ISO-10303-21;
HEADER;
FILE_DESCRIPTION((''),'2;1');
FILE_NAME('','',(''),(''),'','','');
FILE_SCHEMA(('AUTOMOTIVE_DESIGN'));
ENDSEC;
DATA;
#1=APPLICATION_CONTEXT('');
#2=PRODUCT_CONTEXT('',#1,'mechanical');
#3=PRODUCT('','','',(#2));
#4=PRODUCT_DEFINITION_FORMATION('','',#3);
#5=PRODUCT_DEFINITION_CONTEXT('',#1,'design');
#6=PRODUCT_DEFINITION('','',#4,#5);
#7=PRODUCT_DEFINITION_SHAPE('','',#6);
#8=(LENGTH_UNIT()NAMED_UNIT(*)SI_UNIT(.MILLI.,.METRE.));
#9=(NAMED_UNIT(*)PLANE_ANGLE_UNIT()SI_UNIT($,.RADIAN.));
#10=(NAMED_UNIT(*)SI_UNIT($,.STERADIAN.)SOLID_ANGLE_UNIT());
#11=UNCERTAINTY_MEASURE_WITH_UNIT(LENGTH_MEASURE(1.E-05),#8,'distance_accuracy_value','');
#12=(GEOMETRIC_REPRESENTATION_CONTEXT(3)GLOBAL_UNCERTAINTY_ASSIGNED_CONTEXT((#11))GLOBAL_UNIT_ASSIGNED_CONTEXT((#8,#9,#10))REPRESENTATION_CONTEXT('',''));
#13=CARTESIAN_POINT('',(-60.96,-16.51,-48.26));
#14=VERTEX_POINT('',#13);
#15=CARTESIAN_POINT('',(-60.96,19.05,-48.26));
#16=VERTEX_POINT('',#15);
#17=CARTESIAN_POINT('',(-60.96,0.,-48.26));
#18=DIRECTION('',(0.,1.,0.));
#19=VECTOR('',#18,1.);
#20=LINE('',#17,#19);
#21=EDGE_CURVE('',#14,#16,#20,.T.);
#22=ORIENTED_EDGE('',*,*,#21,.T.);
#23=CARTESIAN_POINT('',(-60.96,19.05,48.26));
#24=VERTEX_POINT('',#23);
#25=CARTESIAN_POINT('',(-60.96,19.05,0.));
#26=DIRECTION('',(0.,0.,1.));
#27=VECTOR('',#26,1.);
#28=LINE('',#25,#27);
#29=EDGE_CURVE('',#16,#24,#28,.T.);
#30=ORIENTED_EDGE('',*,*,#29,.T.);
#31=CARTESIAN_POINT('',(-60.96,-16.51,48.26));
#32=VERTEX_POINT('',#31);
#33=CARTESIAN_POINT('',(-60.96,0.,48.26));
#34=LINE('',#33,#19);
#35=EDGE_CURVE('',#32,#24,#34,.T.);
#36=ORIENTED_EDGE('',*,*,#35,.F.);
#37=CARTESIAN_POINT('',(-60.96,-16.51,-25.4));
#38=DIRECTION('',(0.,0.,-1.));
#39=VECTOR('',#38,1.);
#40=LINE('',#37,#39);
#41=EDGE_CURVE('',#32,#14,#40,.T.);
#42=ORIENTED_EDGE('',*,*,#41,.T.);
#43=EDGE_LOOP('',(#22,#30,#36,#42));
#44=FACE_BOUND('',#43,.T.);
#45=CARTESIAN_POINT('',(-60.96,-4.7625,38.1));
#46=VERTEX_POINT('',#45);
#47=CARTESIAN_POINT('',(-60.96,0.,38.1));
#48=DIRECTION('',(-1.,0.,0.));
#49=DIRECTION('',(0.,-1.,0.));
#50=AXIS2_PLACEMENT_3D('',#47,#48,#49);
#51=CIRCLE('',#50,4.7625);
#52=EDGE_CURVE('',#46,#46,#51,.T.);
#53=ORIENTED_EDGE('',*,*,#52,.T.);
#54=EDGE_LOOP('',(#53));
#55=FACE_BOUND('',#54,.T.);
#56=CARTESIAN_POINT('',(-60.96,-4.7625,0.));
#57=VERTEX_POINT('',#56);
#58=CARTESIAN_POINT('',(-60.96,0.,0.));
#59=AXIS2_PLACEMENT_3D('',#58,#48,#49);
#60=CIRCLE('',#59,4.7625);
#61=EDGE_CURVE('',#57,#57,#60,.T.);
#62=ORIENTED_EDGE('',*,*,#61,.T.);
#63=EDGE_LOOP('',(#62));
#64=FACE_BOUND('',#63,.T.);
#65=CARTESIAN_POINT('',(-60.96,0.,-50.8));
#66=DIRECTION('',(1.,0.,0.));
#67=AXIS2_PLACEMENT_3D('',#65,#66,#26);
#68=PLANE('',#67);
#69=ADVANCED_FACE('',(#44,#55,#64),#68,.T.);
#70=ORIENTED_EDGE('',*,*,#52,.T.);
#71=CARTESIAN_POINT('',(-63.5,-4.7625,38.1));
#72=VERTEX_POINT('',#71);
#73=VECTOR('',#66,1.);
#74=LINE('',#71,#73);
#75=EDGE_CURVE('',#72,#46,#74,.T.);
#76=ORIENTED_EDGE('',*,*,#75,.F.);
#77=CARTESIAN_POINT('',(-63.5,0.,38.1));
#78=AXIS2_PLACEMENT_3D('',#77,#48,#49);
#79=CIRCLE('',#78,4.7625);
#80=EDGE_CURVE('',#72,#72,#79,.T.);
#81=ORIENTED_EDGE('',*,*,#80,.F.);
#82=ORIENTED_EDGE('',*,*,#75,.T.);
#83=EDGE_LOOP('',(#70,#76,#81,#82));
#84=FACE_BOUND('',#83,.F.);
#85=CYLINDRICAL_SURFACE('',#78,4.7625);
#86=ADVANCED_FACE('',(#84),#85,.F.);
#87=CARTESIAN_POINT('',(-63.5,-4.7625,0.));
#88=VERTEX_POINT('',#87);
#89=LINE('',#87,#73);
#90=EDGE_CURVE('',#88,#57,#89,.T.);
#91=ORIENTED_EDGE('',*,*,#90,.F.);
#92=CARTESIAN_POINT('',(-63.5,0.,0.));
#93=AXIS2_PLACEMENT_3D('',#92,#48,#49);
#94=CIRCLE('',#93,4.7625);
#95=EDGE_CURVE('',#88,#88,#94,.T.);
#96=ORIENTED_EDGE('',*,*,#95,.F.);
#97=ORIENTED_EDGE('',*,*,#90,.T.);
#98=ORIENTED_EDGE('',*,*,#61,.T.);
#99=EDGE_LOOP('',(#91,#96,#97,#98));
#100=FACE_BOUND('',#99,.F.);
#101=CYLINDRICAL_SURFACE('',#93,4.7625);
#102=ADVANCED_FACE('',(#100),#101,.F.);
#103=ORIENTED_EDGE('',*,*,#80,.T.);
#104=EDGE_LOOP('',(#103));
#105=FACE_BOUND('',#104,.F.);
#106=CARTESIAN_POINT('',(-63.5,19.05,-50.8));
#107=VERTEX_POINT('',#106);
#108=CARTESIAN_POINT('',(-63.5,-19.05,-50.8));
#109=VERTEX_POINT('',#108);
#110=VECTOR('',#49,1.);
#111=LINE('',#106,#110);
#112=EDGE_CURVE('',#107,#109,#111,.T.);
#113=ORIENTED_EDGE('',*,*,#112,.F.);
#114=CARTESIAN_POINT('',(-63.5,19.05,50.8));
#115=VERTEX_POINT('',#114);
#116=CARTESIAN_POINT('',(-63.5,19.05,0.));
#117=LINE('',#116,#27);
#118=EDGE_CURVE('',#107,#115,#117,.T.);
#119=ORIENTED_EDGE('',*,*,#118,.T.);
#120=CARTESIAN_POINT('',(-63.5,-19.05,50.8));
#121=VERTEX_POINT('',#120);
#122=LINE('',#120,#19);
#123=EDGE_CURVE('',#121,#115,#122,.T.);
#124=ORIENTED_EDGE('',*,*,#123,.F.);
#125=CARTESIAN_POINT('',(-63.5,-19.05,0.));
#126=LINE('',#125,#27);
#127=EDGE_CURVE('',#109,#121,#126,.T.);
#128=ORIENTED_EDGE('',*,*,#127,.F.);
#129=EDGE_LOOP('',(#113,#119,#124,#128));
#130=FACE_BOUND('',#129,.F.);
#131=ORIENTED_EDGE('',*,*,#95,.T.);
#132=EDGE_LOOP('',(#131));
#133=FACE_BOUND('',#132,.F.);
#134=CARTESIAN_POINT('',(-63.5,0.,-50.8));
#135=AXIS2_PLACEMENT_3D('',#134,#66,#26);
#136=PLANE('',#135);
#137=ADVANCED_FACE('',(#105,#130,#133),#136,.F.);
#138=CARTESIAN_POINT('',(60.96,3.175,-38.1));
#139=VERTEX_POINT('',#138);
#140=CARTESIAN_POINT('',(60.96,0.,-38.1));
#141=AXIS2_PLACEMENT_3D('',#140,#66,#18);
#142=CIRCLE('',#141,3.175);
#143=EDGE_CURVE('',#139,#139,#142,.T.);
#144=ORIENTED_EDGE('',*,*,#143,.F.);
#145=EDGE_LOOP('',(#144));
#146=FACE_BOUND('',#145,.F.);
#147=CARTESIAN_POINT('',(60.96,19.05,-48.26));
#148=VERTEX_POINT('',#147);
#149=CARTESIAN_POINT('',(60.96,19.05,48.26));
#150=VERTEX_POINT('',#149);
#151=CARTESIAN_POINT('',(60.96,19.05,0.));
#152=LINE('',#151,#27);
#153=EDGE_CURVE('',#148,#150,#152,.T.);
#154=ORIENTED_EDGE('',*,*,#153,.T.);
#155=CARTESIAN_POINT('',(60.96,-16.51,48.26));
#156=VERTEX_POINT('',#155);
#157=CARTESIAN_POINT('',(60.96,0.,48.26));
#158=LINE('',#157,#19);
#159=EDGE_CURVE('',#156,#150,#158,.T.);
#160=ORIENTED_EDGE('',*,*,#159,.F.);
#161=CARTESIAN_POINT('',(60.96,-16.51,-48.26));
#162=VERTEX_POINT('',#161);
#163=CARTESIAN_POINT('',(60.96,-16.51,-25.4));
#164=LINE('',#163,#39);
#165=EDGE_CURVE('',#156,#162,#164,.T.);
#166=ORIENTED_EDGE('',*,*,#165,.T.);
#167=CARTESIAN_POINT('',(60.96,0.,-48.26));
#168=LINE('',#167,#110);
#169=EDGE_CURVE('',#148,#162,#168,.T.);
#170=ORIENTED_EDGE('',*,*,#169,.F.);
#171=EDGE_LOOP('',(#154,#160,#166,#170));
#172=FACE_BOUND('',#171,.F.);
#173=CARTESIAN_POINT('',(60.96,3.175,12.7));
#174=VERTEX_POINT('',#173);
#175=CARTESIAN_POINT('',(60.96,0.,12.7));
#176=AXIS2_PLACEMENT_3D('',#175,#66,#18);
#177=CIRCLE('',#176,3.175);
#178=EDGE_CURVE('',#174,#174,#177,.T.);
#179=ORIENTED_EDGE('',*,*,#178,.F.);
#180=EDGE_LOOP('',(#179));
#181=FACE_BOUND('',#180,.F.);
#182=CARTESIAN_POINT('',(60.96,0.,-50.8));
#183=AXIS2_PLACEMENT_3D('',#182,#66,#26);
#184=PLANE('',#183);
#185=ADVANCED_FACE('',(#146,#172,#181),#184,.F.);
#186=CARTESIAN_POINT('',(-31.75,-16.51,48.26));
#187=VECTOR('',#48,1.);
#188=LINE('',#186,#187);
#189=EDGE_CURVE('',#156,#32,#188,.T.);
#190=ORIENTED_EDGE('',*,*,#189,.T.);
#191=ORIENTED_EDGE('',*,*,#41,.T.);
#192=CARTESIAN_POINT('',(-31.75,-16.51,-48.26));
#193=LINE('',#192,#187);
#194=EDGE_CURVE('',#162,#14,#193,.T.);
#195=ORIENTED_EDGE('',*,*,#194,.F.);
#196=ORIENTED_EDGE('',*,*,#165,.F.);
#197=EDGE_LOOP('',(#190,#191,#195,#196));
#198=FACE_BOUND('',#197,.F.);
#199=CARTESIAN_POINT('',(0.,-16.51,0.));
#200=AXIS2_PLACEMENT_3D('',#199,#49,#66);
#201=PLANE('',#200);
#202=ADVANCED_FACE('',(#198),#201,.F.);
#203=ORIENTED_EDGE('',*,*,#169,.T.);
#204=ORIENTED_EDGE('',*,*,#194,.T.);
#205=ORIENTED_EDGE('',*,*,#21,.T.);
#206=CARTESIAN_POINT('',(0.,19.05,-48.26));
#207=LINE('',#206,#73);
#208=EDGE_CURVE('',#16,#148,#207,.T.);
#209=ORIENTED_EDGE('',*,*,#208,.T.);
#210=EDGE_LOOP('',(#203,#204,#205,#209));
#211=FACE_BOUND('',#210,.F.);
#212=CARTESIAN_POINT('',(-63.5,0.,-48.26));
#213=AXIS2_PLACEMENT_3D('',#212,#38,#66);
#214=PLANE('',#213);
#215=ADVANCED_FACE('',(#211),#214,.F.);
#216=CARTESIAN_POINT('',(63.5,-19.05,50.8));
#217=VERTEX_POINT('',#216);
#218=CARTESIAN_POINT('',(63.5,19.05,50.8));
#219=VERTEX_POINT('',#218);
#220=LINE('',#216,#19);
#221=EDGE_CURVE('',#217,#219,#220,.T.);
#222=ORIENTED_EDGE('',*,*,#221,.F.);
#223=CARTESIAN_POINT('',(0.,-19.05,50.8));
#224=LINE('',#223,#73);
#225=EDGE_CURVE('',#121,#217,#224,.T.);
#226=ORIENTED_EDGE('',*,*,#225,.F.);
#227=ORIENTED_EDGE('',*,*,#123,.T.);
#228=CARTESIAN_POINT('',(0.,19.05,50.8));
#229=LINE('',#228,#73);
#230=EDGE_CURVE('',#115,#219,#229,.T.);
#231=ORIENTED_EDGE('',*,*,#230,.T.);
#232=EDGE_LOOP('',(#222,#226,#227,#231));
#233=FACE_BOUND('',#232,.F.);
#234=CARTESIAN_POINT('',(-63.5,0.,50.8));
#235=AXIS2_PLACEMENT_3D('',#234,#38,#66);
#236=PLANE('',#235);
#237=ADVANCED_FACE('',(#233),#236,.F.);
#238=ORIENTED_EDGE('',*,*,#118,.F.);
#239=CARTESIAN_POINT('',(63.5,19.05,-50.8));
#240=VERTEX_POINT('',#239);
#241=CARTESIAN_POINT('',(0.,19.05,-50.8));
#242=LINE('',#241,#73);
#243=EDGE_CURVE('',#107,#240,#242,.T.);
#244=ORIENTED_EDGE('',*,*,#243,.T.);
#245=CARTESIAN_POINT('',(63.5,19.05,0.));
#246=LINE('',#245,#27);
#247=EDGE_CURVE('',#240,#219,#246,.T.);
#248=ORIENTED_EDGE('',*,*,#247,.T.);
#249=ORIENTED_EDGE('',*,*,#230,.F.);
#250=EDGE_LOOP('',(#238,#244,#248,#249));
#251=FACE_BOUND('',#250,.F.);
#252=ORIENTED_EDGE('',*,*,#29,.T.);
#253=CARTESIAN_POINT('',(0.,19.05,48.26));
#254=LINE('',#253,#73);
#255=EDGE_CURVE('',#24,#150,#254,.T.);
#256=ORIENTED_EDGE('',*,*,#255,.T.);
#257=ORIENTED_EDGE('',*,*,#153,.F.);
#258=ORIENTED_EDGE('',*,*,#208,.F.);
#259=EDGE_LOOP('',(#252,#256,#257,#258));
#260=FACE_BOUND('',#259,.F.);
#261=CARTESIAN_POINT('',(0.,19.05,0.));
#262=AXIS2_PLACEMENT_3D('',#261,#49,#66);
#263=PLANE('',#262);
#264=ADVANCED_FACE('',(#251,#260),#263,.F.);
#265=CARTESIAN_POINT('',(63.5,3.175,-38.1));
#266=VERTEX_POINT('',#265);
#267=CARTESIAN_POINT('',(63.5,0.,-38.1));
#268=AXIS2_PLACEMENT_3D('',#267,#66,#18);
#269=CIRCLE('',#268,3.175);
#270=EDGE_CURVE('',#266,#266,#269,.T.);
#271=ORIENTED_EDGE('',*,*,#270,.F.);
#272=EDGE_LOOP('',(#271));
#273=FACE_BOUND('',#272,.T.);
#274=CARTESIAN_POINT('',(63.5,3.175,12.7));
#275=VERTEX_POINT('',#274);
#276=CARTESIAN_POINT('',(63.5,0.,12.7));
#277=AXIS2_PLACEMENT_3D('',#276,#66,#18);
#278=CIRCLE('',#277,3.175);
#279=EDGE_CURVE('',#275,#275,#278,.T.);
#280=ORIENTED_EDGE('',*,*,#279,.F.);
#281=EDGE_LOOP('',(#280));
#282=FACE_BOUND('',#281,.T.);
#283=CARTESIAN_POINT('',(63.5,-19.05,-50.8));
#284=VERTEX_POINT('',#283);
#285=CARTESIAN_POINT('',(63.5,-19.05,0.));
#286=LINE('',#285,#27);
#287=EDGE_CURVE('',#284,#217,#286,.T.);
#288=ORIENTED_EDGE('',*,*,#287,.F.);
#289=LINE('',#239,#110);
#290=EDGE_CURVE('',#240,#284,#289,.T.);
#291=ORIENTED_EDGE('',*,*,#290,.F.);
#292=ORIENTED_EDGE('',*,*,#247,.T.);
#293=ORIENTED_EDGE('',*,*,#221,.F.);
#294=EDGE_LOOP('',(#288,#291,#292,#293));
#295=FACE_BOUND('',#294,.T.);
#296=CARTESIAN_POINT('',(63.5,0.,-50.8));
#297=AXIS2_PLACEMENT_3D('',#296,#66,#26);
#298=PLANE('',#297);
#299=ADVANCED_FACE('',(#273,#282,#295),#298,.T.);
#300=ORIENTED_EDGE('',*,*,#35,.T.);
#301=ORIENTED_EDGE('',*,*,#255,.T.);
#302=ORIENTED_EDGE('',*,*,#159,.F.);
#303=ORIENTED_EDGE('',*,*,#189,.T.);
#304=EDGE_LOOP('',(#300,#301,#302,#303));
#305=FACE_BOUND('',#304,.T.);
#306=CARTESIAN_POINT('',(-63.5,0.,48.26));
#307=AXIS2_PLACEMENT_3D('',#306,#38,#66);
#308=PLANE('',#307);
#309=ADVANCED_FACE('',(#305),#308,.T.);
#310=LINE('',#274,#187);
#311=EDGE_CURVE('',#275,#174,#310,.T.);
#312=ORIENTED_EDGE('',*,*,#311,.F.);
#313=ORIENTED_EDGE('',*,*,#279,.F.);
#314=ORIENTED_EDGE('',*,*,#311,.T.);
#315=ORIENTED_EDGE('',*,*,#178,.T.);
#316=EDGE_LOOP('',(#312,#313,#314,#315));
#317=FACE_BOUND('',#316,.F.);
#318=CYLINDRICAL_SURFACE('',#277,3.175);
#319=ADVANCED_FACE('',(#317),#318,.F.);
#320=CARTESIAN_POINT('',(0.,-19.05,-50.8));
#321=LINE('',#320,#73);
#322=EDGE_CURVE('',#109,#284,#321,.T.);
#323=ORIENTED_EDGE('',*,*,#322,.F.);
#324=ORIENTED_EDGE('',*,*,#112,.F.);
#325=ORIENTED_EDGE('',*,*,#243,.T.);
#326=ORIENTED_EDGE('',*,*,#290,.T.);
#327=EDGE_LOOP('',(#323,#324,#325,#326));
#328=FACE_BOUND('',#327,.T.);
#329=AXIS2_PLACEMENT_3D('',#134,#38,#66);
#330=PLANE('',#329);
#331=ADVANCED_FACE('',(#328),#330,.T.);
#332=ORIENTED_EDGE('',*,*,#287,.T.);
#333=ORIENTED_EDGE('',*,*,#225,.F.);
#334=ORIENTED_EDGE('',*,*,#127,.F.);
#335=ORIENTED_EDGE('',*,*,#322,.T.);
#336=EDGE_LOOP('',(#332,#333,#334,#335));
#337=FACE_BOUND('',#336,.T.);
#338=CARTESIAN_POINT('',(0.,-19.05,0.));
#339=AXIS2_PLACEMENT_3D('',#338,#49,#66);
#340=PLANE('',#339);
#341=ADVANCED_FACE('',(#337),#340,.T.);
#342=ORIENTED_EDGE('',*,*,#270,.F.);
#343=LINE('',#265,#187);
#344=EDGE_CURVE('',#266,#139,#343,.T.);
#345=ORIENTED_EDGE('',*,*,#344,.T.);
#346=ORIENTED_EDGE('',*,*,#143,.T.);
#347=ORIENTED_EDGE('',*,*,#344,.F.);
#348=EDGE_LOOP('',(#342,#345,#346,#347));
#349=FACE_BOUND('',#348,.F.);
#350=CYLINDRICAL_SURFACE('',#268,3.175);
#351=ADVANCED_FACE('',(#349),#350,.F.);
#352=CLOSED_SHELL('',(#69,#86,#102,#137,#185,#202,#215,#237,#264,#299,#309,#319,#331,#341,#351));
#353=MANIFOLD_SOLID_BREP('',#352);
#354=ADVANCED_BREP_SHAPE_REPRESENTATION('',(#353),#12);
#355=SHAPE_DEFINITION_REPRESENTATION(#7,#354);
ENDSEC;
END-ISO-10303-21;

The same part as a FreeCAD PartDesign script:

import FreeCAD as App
import Part
import Sketcher
from FreeCAD import Vector
Q = App.Units.Quantity


def faces_at(feature, points):
    """Names of the faces that lie closest to the given points."""
    faces = feature.Shape.Faces
    near = lambda p: min(range(len(faces)), key=lambda i: faces[i].distToShape(Part.Vertex(*p))[0])
    return sorted({f"Face{near(p) + 1}" for p in points})

doc = App.newDocument("Part")
params = doc.addObject("Spreadsheet::Sheet", "Params")
for row, (alias, value) in enumerate([
    ("sketch1_width", "5 in"),
    ("sketch1_height", "4 in"),
    ("pad1_length", "1.5 in"),
    ("thickness_wall", "0.1 in"),
    ("sketch2_diameter", "0.25 in"),
    ("pocket1_length", "0.1 in"),
    ("sketch3_diameter", "0.375 in"),
    ("pocket2_length", "0.1 in"),
], start=1):
    params.set(f"A{row}", alias)
    params.set(f"B{row}", "=" + value)
    params.setAlias(f"B{row}", alias)

body = doc.addObject("PartDesign::Body", "Body")

# Sketch on XZ plane
sketch1 = doc.addObject("Sketcher::SketchObject", "Sketch")
body.addObject(sketch1)
sketch1.AttachmentSupport = (doc.XZ_Plane, [""])
sketch1.MapMode = "FlatFace"
sketch1.addGeometry([
    Part.LineSegment(Vector(-64, 51, 0), Vector(-64, -51, 0)),
    Part.LineSegment(Vector(-64, -51, 0), Vector(64, -51, 0)),
    Part.LineSegment(Vector(64, -51, 0), Vector(64, 51, 0)),
    Part.LineSegment(Vector(64, 51, 0), Vector(-64, 51, 0)),
], False)
sketch1.addConstraint([
    Sketcher.Constraint("Coincident", 0, 2, 1, 1),
    Sketcher.Constraint("Coincident", 1, 2, 2, 1),
    Sketcher.Constraint("Coincident", 2, 2, 3, 1),
    Sketcher.Constraint("Coincident", 3, 2, 0, 1),
    Sketcher.Constraint("Vertical", 0),
    Sketcher.Constraint("Horizontal", 1),
    Sketcher.Constraint("Vertical", 2),
    Sketcher.Constraint("Horizontal", 3),
    Sketcher.Constraint("Symmetric", 0, 2, 2, 2, -1, 1),
    Sketcher.Constraint("DistanceX", 1, 1, 1, 2, Q("5 in")),
    Sketcher.Constraint("DistanceY", 0, 2, 0, 1, Q("4 in")),
])
sketch1.setExpression("Constraints[9]", "Params.sketch1_width")
sketch1.setExpression("Constraints[10]", "Params.sketch1_height")
pad1 = doc.addObject("PartDesign::Pad", "Pad")
body.addObject(pad1)
pad1.Profile = sketch1
pad1.setExpression("Length", "Params.pad1_length")
pad1.Midplane = True
doc.recompute()

thickness = doc.addObject("PartDesign::Thickness", "Thickness")
body.addObject(thickness)
thickness.Base = (pad1, faces_at(pad1, [(0, 19.05, 0)]))
thickness.setExpression("Value", "Params.thickness_wall")
thickness.Reversed = True
thickness.Join = "Arc"

# Sketch on YZ plane
sketch2 = doc.addObject("Sketcher::SketchObject", "Sketch001")
body.addObject(sketch2)
sketch2.AttachmentSupport = (doc.YZ_Plane, [""])
sketch2.MapMode = "FlatFace"
sketch2.AttachmentOffset = App.Placement(Vector(0, 0, 2.5 * 25.4), App.Rotation())
sketch2.addGeometry([
    Part.Circle(Vector(0, -38.1, 0), Vector(0, 0, 1), 3.2),
    Part.Circle(Vector(0, 12.7, 0), Vector(0, 0, 1), 3.2),
], False)
sketch2.addConstraint([
    Sketcher.Constraint("Equal", 0, 1),
    Sketcher.Constraint("PointOnObject", 0, 3, -2),
    Sketcher.Constraint("PointOnObject", 1, 3, -2),
    Sketcher.Constraint("Diameter", 0, Q("0.25 in")),
    Sketcher.Constraint("DistanceY", 0, 3, 1, 3, Q("2 in")),
    Sketcher.Constraint("DistanceY", 0, 3, -1, 1, Q("1.5 in")),
])
sketch2.setExpression("Constraints[3]", "Params.sketch2_diameter")
pocket1 = doc.addObject("PartDesign::Pocket", "Pocket")
body.addObject(pocket1)
pocket1.Profile = sketch2
pocket1.setExpression("Length", "Params.pocket1_length")

# Sketch on YZ plane
sketch3 = doc.addObject("Sketcher::SketchObject", "Sketch002")
body.addObject(sketch3)
sketch3.AttachmentSupport = (doc.YZ_Plane, [""])
sketch3.MapMode = "FlatFace"
sketch3.AttachmentOffset = App.Placement(Vector(0, 0, -2.5 * 25.4), App.Rotation())
sketch3.addGeometry([
    Part.Circle(Vector(0, 38.1, 0), Vector(0, 0, 1), 4.8),
    Part.Circle(Vector(0, 0, 0), Vector(0, 0, 1), 4.8),
], False)
sketch3.addConstraint([
    Sketcher.Constraint("Coincident", 1, 3, -1, 1),
    Sketcher.Constraint("Equal", 0, 1),
    Sketcher.Constraint("PointOnObject", 0, 3, -2),
    Sketcher.Constraint("Diameter", 0, Q("0.375 in")),
    Sketcher.Constraint("DistanceY", -1, 1, 0, 3, Q("1.5 in")),
])
sketch3.setExpression("Constraints[3]", "Params.sketch3_diameter")
pocket2 = doc.addObject("PartDesign::Pocket", "Pocket001")
body.addObject(pocket2)
pocket2.Profile = sketch3
pocket2.setExpression("Length", "Params.pocket2_length")
pocket2.Reversed = True

doc.recompute()
